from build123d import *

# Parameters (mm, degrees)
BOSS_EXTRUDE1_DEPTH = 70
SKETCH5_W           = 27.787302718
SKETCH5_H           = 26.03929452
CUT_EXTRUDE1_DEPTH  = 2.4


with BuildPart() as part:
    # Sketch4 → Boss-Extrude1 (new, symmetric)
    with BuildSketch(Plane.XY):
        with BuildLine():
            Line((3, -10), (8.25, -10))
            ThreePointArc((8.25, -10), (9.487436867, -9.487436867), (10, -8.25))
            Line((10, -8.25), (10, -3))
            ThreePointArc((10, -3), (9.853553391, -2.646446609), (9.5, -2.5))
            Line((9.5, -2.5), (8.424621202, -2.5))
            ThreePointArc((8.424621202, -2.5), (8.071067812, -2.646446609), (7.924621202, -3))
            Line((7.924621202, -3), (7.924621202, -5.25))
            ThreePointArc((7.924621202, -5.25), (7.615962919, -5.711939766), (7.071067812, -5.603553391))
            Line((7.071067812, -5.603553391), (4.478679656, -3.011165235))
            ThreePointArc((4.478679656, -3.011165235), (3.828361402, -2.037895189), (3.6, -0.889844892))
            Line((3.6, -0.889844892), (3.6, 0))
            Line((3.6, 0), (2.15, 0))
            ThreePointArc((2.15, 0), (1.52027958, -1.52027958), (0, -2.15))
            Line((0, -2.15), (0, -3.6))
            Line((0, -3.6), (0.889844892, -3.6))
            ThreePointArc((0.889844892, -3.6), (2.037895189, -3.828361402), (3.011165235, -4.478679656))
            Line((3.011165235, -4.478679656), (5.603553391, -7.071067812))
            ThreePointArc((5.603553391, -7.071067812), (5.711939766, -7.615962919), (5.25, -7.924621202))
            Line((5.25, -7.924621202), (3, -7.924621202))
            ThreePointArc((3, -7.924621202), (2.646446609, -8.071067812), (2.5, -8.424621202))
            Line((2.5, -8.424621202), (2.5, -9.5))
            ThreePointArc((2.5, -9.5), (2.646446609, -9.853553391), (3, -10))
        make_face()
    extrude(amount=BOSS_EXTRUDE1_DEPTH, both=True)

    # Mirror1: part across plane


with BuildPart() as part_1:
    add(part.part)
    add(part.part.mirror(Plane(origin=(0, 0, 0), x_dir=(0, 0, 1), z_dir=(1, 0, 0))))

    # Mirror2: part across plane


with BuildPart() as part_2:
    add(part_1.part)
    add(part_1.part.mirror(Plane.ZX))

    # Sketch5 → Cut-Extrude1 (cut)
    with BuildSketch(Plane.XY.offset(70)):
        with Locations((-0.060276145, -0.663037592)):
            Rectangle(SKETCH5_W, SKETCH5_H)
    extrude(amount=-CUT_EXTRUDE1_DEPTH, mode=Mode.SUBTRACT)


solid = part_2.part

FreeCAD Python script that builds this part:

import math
import FreeCAD as App
import Part
import Sketcher
from FreeCAD import Vector
Q = App.Units.Quantity

doc = App.newDocument("Part")
params = doc.addObject("Spreadsheet::Sheet", "Params")
for row, (alias, value) in enumerate([
    ("sketch1_radius", "3 mm"),
    ("sketch1_radius2", "0.5 mm"),
    ("sketch1_radius3", "1.75 mm"),
    ("sketch1_radius4", "2.15 mm"),
    ("sketch1_width", "1.45 mm"),
    ("pad1_length", "140 mm"),
    ("pocket1_length", "2.4 mm"),
], start=1):
    params.set(f"A{row}", alias)
    params.set(f"B{row}", "=" + value)
    params.setAlias(f"B{row}", alias)

body = doc.addObject("PartDesign::Body", "Body")

# Sketch on XY plane
sketch1 = doc.addObject("Sketcher::SketchObject", "Sketch")
body.addObject(sketch1)
sketch1.AttachmentSupport = (doc.XY_Plane, [""])
sketch1.MapMode = "FlatFace"
sketch1.addGeometry(Part.LineSegment(Vector(3, -10, 0), Vector(8.25, -10, 0)), False)
sketch1.addGeometry(Part.ArcOfCircle(Part.Circle(Vector(8.25, -8.25, 0), Vector(0, 0, 1), 1.75), math.radians(-90), math.radians(0)), False)
sketch1.addGeometry(Part.LineSegment(Vector(10, -8.25, 0), Vector(10, -3, 0)), False)
sketch1.addGeometry(Part.ArcOfCircle(Part.Circle(Vector(9.5, -3, 0), Vector(0, 0, 1), 0.5), math.radians(0), math.radians(90)), False)
sketch1.addGeometry(Part.LineSegment(Vector(9.5, -2.5, 0), Vector(8.42, -2.5, 0)), False)
sketch1.addGeometry(Part.ArcOfCircle(Part.Circle(Vector(8.42, -3, 0), Vector(0, 0, 1), 0.5), math.radians(90), math.radians(180)), False)
sketch1.addGeometry(Part.LineSegment(Vector(7.92, -3, 0), Vector(7.92, -5.25, 0)), False)
sketch1.addGeometry(Part.ArcOfCircle(Part.Circle(Vector(7.42, -5.25, 0), Vector(0, 0, 1), 0.5), math.radians(-135), math.radians(0)), False)
sketch1.addGeometry(Part.LineSegment(Vector(7.07, -5.6, 0), Vector(4.48, -3.01, 0)), False)
sketch1.addGeometry(Part.ArcOfCircle(Part.Circle(Vector(6.6, -0.89, 0), Vector(0, 0, 1), 3), math.radians(180), math.radians(225)), False)
sketch1.addGeometry(Part.LineSegment(Vector(3.6, -0.89, 0), Vector(3.6, 0, 0)), False)
sketch1.addGeometry(Part.LineSegment(Vector(3.6, 0, 0), Vector(2.15, 0, 0)), False)
sketch1.addGeometry(Part.ArcOfCircle(Part.Circle(Vector(0, 0, 0), Vector(0, 0, 1), 2.15), math.radians(-90), math.radians(0)), False)
sketch1.addGeometry(Part.LineSegment(Vector(0, -2.15, 0), Vector(0, -3.6, 0)), False)
sketch1.addGeometry(Part.LineSegment(Vector(0, -3.6, 0), Vector(0.89, -3.6, 0)), False)
sketch1.addGeometry(Part.ArcOfCircle(Part.Circle(Vector(0.89, -6.6, 0), Vector(0, 0, 1), 3), math.radians(45), math.radians(90)), False)
sketch1.addGeometry(Part.LineSegment(Vector(3.01, -4.48, 0), Vector(5.6, -7.07, 0)), False)
sketch1.addGeometry(Part.ArcOfCircle(Part.Circle(Vector(5.25, -7.42, 0), Vector(0, 0, 1), 0.5), math.radians(-90), math.radians(45)), False)
sketch1.addGeometry(Part.LineSegment(Vector(5.25, -7.92, 0), Vector(3, -7.92, 0)), False)
sketch1.addGeometry(Part.ArcOfCircle(Part.Circle(Vector(3, -8.42, 0), Vector(0, 0, 1), 0.5), math.radians(90), math.radians(180)), False)
sketch1.addGeometry(Part.LineSegment(Vector(2.5, -8.42, 0), Vector(2.5, -9.5, 0)), False)
sketch1.addGeometry(Part.ArcOfCircle(Part.Circle(Vector(3, -9.5, 0), Vector(0, 0, 1), 0.5), math.radians(180), math.radians(270)), False)
sketch1.addConstraint(Sketcher.Constraint("Tangent", 0, 2, 1, 1))
sketch1.addConstraint(Sketcher.Constraint("Tangent", 1, 2, 2, 1))
sketch1.addConstraint(Sketcher.Constraint("Tangent", 2, 2, 3, 1))
sketch1.addConstraint(Sketcher.Constraint("Tangent", 3, 2, 4, 1))
sketch1.addConstraint(Sketcher.Constraint("Tangent", 4, 2, 5, 1))
sketch1.addConstraint(Sketcher.Constraint("Tangent", 5, 2, 6, 1))
sketch1.addConstraint(Sketcher.Constraint("Tangent", 6, 2, 7, 2))
sketch1.addConstraint(Sketcher.Constraint("Tangent", 7, 1, 8, 1))
sketch1.addConstraint(Sketcher.Constraint("Tangent", 8, 2, 9, 2))
sketch1.addConstraint(Sketcher.Constraint("Tangent", 9, 1, 10, 1))
sketch1.addConstraint(Sketcher.Constraint("Coincident", 10, 2, 11, 1))
sketch1.addConstraint(Sketcher.Constraint("Coincident", 11, 2, 12, 2))
sketch1.addConstraint(Sketcher.Constraint("Coincident", 12, 1, 13, 1))
sketch1.addConstraint(Sketcher.Constraint("Coincident", 13, 2, 14, 1))
sketch1.addConstraint(Sketcher.Constraint("Tangent", 14, 2, 15, 2))
sketch1.addConstraint(Sketcher.Constraint("Tangent", 15, 1, 16, 1))
sketch1.addConstraint(Sketcher.Constraint("Tangent", 16, 2, 17, 2))
sketch1.addConstraint(Sketcher.Constraint("Tangent", 17, 1, 18, 1))
sketch1.addConstraint(Sketcher.Constraint("Tangent", 18, 2, 19, 1))
sketch1.addConstraint(Sketcher.Constraint("Tangent", 19, 2, 20, 1))
sketch1.addConstraint(Sketcher.Constraint("Tangent", 20, 2, 21, 1))
sketch1.addConstraint(Sketcher.Constraint("Tangent", 21, 2, 0, 1))
sketch1.addConstraint(Sketcher.Constraint("Horizontal", 0))
sketch1.addConstraint(Sketcher.Constraint("Vertical", 2))
sketch1.addConstraint(Sketcher.Constraint("Horizontal", 4))
sketch1.addConstraint(Sketcher.Constraint("Vertical", 6))
sketch1.addConstraint(Sketcher.Constraint("Vertical", 10))
sketch1.addConstraint(Sketcher.Constraint("Horizontal", 11))
sketch1.addConstraint(Sketcher.Constraint("Vertical", 13))
sketch1.addConstraint(Sketcher.Constraint("Horizontal", 14))
sketch1.addConstraint(Sketcher.Constraint("Horizontal", 18))
sketch1.addConstraint(Sketcher.Constraint("Vertical", 20))
sketch1.addConstraint(Sketcher.Constraint("Coincident", 12, 3, -1, 1))
sketch1.addConstraint(Sketcher.Constraint("Equal", 3, 5))
sketch1.addConstraint(Sketcher.Constraint("Equal", 5, 7))
sketch1.addConstraint(Sketcher.Constraint("Equal", 9, 15))
sketch1.addConstraint(Sketcher.Constraint("Equal", 7, 17))
sketch1.addConstraint(Sketcher.Constraint("Equal", 17, 19))
sketch1.addConstraint(Sketcher.Constraint("Equal", 19, 21))
sketch1.addConstraint(Sketcher.Constraint("PointOnObject", 10, 2, -1))
sketch1.addConstraint(Sketcher.Constraint("PointOnObject", 12, 1, -2))
sketch1.addConstraint(Sketcher.Constraint("Parallel", 8, 16))
sketch1.addConstraint(Sketcher.Constraint("Equal", 0, 2))
sketch1.addConstraint(Sketcher.Constraint("Equal", 18, 6))
sketch1.addConstraint(Sketcher.Constraint("Equal", 14, 10))
sketch1.addConstraint(Sketcher.Constraint("Equal", 11, 13))
sketch1.addConstraint(Sketcher.Constraint("Equal", 4, 20))
sketch1.addConstraint(Sketcher.Constraint("Equal", 8, 16))
sketch1.addConstraint(Sketcher.Constraint("Radius", 9, Q("3 mm")))
sketch1.addConstraint(Sketcher.Constraint("Radius", 3, Q("0.5 mm")))
sketch1.addConstraint(Sketcher.Constraint("Radius", 1, Q("1.75 mm")))
sketch1.addConstraint(Sketcher.Constraint("Radius", 12, Q("2.15 mm")))
sketch1.addConstraint(Sketcher.Constraint("DistanceY", 3, 3, -1, 1, Q("3 mm")))
sketch1.addConstraint(Sketcher.Constraint("DistanceY", 0, 2, -1, 1, Q("10 mm")))
sketch1.addConstraint(Sketcher.Constraint("DistanceY", 1, 3, 7, 3, Q("3 mm")))
sketch1.addConstraint(Sketcher.Constraint("DistanceX", 11, 2, 11, 1, Q("1.45 mm")))
sketch1.addConstraint(Sketcher.Constraint("DistanceX", 4, 2, 4, 1, Q("1.075379 mm")))
sketch1.setExpression("Constraints[48]", "Params.sketch1_radius")
sketch1.setExpression("Constraints[49]", "Params.sketch1_radius2")
sketch1.setExpression("Constraints[50]", "Params.sketch1_radius3")
sketch1.setExpression("Constraints[51]", "Params.sketch1_radius4")
sketch1.setExpression("Constraints[55]", "Params.sketch1_width")
pad1 = doc.addObject("PartDesign::Pad", "Pad")
body.addObject(pad1)
pad1.Profile = sketch1
pad1.setExpression("Length", "Params.pad1_length")
pad1.Midplane = True
body2 = doc.addObject("PartDesign::Body", "Body001")
doc.recompute()

body2.BaseFeature = body
doc.recompute()

mirroring = doc.addObject("Part::Mirroring", "Mirroring")
mirroring.Source = body
mirroring.Base = Vector(0, 0, 0)
mirroring.Normal = Vector(1, 0, 0)
body3 = doc.addObject("PartDesign::Body", "Body002")
body3.BaseFeature = mirroring
boolean = doc.addObject("PartDesign::Boolean", "Boolean")
body2.addObject(boolean)
boolean.Type = "Fuse"
boolean.addObjects([body3])
doc.recompute()
body4 = doc.addObject("PartDesign::Body", "Body003")
doc.recompute()

body4.BaseFeature = body2
doc.recompute()

mirroring2 = doc.addObject("Part::Mirroring", "Mirroring001")
mirroring2.Source = body2
mirroring2.Base = Vector(0, 0, 0)
mirroring2.Normal = Vector(0, 1, 0)
body5 = doc.addObject("PartDesign::Body", "Body004")
body5.BaseFeature = mirroring2
boolean2 = doc.addObject("PartDesign::Boolean", "Boolean001")
body4.addObject(boolean2)
boolean2.Type = "Fuse"
boolean2.addObjects([body5])
doc.recompute()

# Sketch on XY plane
sketch2 = doc.addObject("Sketcher::SketchObject", "Sketch001")
body4.addObject(sketch2)
sketch2.AttachmentSupport = (doc.getObject("XY_Plane003"), [""])
sketch2.MapMode = "FlatFace"
sketch2.AttachmentOffset = App.Placement(Vector(0, 0, 70), App.Rotation())
sketch2.addGeometry(Part.LineSegment(Vector(-14, 12, 0), Vector(-14, -14, 0)), False)
sketch2.addGeometry(Part.LineSegment(Vector(-14, -14, 0), Vector(14, -14, 0)), False)
sketch2.addGeometry(Part.LineSegment(Vector(14, -14, 0), Vector(14, 12, 0)), False)
sketch2.addGeometry(Part.LineSegment(Vector(14, 12, 0), Vector(-14, 12, 0)), False)
sketch2.addConstraint(Sketcher.Constraint("Coincident", 0, 2, 1, 1))
sketch2.addConstraint(Sketcher.Constraint("Coincident", 1, 2, 2, 1))
sketch2.addConstraint(Sketcher.Constraint("Coincident", 2, 2, 3, 1))
sketch2.addConstraint(Sketcher.Constraint("Coincident", 3, 2, 0, 1))
sketch2.addConstraint(Sketcher.Constraint("Vertical", 0))
sketch2.addConstraint(Sketcher.Constraint("Horizontal", 1))
sketch2.addConstraint(Sketcher.Constraint("Vertical", 2))
sketch2.addConstraint(Sketcher.Constraint("Horizontal", 3))
sketch2.addConstraint(Sketcher.Constraint("DistanceX", 1, 1, 1, 2, Q("27.787303 mm")))
sketch2.addConstraint(Sketcher.Constraint("DistanceY", 0, 2, 0, 1, Q("26.039295 mm")))
sketch2.addConstraint(Sketcher.Constraint("DistanceY", -1, 1, 2, 2, Q("12.35661 mm")))
sketch2.addConstraint(Sketcher.Constraint("DistanceX", 0, 2, -1, 1, Q("13.953928 mm")))
pocket1 = doc.addObject("PartDesign::Pocket", "Pocket")
body4.addObject(pocket1)
pocket1.Profile = sketch2
pocket1.setExpression("Length", "Params.pocket1_length")
mirroring.Visibility = False
mirroring2.Visibility = False

doc.recompute()
